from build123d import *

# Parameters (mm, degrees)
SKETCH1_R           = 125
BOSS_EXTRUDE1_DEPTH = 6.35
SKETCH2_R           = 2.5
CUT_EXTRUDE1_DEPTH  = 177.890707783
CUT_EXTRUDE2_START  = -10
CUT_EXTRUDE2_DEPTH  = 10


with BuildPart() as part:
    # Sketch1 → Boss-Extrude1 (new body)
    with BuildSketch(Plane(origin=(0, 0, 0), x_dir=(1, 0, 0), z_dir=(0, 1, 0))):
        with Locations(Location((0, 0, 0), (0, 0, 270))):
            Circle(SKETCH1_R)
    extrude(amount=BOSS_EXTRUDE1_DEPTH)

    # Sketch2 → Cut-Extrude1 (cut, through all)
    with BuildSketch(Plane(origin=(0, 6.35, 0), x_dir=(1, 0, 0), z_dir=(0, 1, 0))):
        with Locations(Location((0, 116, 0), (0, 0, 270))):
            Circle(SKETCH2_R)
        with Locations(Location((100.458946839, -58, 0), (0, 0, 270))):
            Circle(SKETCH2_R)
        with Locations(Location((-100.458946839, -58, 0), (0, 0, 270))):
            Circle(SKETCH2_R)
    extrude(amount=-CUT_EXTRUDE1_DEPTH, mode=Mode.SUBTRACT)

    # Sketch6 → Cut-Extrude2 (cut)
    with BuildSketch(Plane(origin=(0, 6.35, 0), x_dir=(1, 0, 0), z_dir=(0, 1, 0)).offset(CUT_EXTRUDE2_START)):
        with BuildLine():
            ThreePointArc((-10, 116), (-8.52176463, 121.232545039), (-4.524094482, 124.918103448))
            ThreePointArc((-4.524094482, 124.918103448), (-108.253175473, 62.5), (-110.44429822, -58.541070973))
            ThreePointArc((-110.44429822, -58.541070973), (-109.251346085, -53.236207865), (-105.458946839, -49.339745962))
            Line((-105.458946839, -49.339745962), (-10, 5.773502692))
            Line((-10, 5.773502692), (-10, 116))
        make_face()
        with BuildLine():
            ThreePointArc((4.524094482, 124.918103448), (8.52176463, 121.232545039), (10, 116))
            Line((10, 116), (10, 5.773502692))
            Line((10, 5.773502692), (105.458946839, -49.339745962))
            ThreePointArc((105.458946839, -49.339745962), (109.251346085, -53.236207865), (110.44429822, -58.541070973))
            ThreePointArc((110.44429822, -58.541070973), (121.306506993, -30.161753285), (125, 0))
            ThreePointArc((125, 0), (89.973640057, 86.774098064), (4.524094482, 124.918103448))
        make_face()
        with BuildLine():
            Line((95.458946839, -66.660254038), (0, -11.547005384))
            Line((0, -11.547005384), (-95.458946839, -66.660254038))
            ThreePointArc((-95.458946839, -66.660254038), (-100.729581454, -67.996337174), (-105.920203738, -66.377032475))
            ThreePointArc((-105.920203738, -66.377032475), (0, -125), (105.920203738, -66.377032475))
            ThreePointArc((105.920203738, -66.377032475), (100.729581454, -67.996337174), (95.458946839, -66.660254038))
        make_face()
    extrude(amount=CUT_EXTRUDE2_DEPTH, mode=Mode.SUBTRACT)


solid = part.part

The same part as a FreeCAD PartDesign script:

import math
import FreeCAD as App
import Part
import Sketcher

V = App.Vector
Q = App.Units.Quantity

doc = App.newDocument("Part")
body = doc.addObject("PartDesign::Body", "Body")

# Sketch on XZ plane
sketch1 = body.newObject("Sketcher::SketchObject", "Sketch")
sketch1.AttachmentSupport = (doc.getObject("XZ_Plane"), [""])
sketch1.MapMode = "FlatFace"
sketch1.addGeometry(Part.Circle(V(0, 0, 0), V(0, 0, 1), 125), False)
sketch1.addConstraint(Sketcher.Constraint("Coincident", 0, 3, -1, 1))
sketch1.addConstraint(Sketcher.Constraint("Diameter", 0, Q("250 mm")))
pad1 = body.newObject("PartDesign::Pad", "Pad")
pad1.Profile = sketch1
pad1.Length = 6.35
pad1.Reversed = True

# Sketch on XZ plane
sketch2 = body.newObject("Sketcher::SketchObject", "Sketch001")
sketch2.AttachmentSupport = (doc.getObject("XZ_Plane"), [""])
sketch2.MapMode = "FlatFace"
sketch2.AttachmentOffset = App.Placement(V(0, 0, -6.35), App.Rotation())
sketch2.addGeometry(Part.Circle(V(0, -116, 0), V(0, 0, 1), 2.5), False)
sketch2.addGeometry(Part.Circle(V(100.458947, 58, 0), V(0, 0, 1), 2.5), False)
sketch2.addGeometry(Part.Circle(V(-100.458947, 58, 0), V(0, 0, 1), 2.5), False)
sketch2.addConstraint(Sketcher.Constraint("Equal", 0, 1))
sketch2.addConstraint(Sketcher.Constraint("Equal", 1, 2))
sketch2.addConstraint(Sketcher.Constraint("Symmetric", 1, 3, 2, 3, -2))
sketch2.addConstraint(Sketcher.Constraint("PointOnObject", 0, 3, -2))
sketch2.addConstraint(Sketcher.Constraint("Diameter", 0, Q("5 mm")))
sketch2.addConstraint(Sketcher.Constraint("DistanceY", 0, 3, -1, 1, Q("116 mm")))
sketch2.addConstraint(Sketcher.Constraint("DistanceY", -1, 1, 1, 3, Q("58 mm")))
sketch2.addConstraint(Sketcher.Constraint("DistanceX", -1, 1, 1, 3, Q("100.458947 mm")))
pocket1 = body.newObject("PartDesign::Pocket", "Pocket")
pocket1.Profile = sketch2
pocket1.Type = "ThroughAll"
pocket1.Reversed = True

# Sketch on XZ plane
sketch3 = body.newObject("Sketcher::SketchObject", "Sketch002")
sketch3.AttachmentSupport = (doc.getObject("XZ_Plane"), [""])
sketch3.MapMode = "FlatFace"
sketch3.AttachmentOffset = App.Placement(V(0, 0, 3.65), App.Rotation())
sketch3.addGeometry(Part.ArcOfCircle(Part.Circle(V(0, -116, 0), V(0, 0, 1), 10), math.radians(-180), math.radians(-116.898377)), False)
sketch3.addGeometry(Part.ArcOfCircle(Part.Circle(V(0, 0, 0), V(0, 0, 1), 125), math.radians(152.074145), math.radians(267.925855)), False)
sketch3.addGeometry(Part.ArcOfCircle(Part.Circle(V(-100.458947, 58, 0), V(0, 0, 1), 10), math.radians(176.898377), math.radians(240)), False)
sketch3.addGeometry(Part.LineSegment(V(-105.458947, 49.339746, 0), V(-10, -5.773503, 0)), False)
sketch3.addGeometry(Part.LineSegment(V(-10, -5.773503, 0), V(-10, -116, 0)), False)
sketch3.addGeometry(Part.ArcOfCircle(Part.Circle(V(0, -116, 0), V(0, 0, 1), 10), math.radians(-63.101623), math.radians(0)), False)
sketch3.addGeometry(Part.LineSegment(V(10, -116, 0), V(10, -5.773503, 0)), False)
sketch3.addGeometry(Part.LineSegment(V(10, -5.773503, 0), V(105.458947, 49.339746, 0)), False)
sketch3.addGeometry(Part.ArcOfCircle(Part.Circle(V(100.458947, 58, 0), V(0, 0, 1), 10), math.radians(-60), math.radians(3.101623)), False)
sketch3.addGeometry(Part.ArcOfCircle(Part.Circle(V(0, 0, 0), V(0, 0, 1), 125), math.radians(0), math.radians(27.925855)), False)
sketch3.addGeometry(Part.ArcOfCircle(Part.Circle(V(0, 0, 0), V(0, 0, 1), 125), math.radians(-87.925855), math.radians(0)), False)
sketch3.addGeometry(Part.LineSegment(V(95.458947, 66.660254, 0), V(0, 11.547005, 0)), False)
sketch3.addGeometry(Part.LineSegment(V(0, 11.547005, 0), V(-95.458947, 66.660254, 0)), False)
sketch3.addGeometry(Part.ArcOfCircle(Part.Circle(V(-100.458947, 58, 0), V(0, 0, 1), 10), math.radians(60), math.radians(123.101623)), False)
sketch3.addGeometry(Part.ArcOfCircle(Part.Circle(V(0, 0, 0), V(0, 0, 1), 125), math.radians(32.074145), math.radians(147.925855)), False)
sketch3.addGeometry(Part.ArcOfCircle(Part.Circle(V(100.458947, 58, 0), V(0, 0, 1), 10), math.radians(56.898377), math.radians(120)), False)
sketch3.addConstraint(Sketcher.Constraint("Coincident", 0, 2, 1, 2))
sketch3.addConstraint(Sketcher.Constraint("Coincident", 1, 1, 2, 1))
sketch3.addConstraint(Sketcher.Constraint("Tangent", 2, 2, 3, 1))
sketch3.addConstraint(Sketcher.Constraint("Coincident", 3, 2, 4, 1))
sketch3.addConstraint(Sketcher.Constraint("Tangent", 4, 2, 0, 1))
sketch3.addConstraint(Sketcher.Constraint("Tangent", 5, 2, 6, 1))
sketch3.addConstraint(Sketcher.Constraint("Coincident", 6, 2, 7, 1))
sketch3.addConstraint(Sketcher.Constraint("Tangent", 7, 2, 8, 1))
sketch3.addConstraint(Sketcher.Constraint("Coincident", 8, 2, 9, 2))
sketch3.addConstraint(Sketcher.Constraint("Tangent", 9, 1, 10, 2))
sketch3.addConstraint(Sketcher.Constraint("Coincident", 10, 1, 5, 1))
sketch3.addConstraint(Sketcher.Constraint("Coincident", 11, 2, 12, 1))
sketch3.addConstraint(Sketcher.Constraint("Tangent", 12, 2, 13, 1))
sketch3.addConstraint(Sketcher.Constraint("Coincident", 13, 2, 14, 2))
sketch3.addConstraint(Sketcher.Constraint("Coincident", 14, 1, 15, 1))
sketch3.addConstraint(Sketcher.Constraint("Tangent", 15, 2, 11, 1))
sketch3.addConstraint(Sketcher.Constraint("Vertical", 4))
sketch3.addConstraint(Sketcher.Constraint("Vertical", 6))
sketch3.addConstraint(Sketcher.Constraint("Coincident", 1, 3, -1, 1))
sketch3.addConstraint(Sketcher.Constraint("Coincident", 9, 3, -1, 1))
sketch3.addConstraint(Sketcher.Constraint("Coincident", 14, 3, -1, 1))
sketch3.addConstraint(Sketcher.Constraint("Coincident", 5, 3, 0, 3))
sketch3.addConstraint(Sketcher.Constraint("Coincident", 13, 3, 2, 3))
sketch3.addConstraint(Sketcher.Constraint("Coincident", 15, 3, 8, 3))
sketch3.addConstraint(Sketcher.Constraint("Equal", 0, 2))
sketch3.addConstraint(Sketcher.Constraint("Equal", 2, 5))
sketch3.addConstraint(Sketcher.Constraint("Equal", 5, 8))
sketch3.addConstraint(Sketcher.Constraint("Equal", 1, 9))
sketch3.addConstraint(Sketcher.Constraint("Equal", 9, 10))
sketch3.addConstraint(Sketcher.Constraint("Equal", 8, 13))
sketch3.addConstraint(Sketcher.Constraint("Equal", 10, 14))
sketch3.addConstraint(Sketcher.Constraint("Equal", 13, 15))
sketch3.addConstraint(Sketcher.Constraint("Symmetric", 2, 3, 8, 3, -2))
sketch3.addConstraint(Sketcher.Constraint("Symmetric", 3, 2, 6, 2, -2))
sketch3.addConstraint(Sketcher.Constraint("PointOnObject", 9, 1, -1))
sketch3.addConstraint(Sketcher.Constraint("PointOnObject", 11, 2, -2))
sketch3.addConstraint(Sketcher.Constraint("Parallel", 7, 11))
sketch3.addConstraint(Sketcher.Constraint("Equal", 7, 11))
sketch3.addConstraint(Sketcher.Constraint("Radius", 0, Q("10 mm")))
sketch3.addConstraint(Sketcher.Constraint("Radius", 1, Q("125 mm")))
sketch3.addConstraint(Sketcher.Constraint("DistanceY", 0, 3, -1, 1, Q("116 mm")))
sketch3.addConstraint(Sketcher.Constraint("DistanceY", -1, 1, 2, 3, Q("58 mm")))
sketch3.addConstraint(Sketcher.Constraint("DistanceX", 1, 1, -1, 1, Q("110.444298 mm")))
pocket2 = body.newObject("PartDesign::Pocket", "Pocket001")
pocket2.Profile = sketch3
pocket2.Length = 10

doc.recompute()
